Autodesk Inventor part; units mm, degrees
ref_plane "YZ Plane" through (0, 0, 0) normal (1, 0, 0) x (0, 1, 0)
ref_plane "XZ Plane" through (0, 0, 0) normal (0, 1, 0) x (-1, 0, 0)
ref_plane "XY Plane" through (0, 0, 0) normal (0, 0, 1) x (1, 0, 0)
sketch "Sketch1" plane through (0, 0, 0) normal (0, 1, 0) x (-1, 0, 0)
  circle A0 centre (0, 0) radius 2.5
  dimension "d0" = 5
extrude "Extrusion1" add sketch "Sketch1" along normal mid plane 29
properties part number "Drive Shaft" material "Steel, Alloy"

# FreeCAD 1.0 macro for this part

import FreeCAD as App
import Part
import Sketcher
from FreeCAD import Vector
Q = App.Units.Quantity

doc = App.newDocument("Part")
params = doc.addObject("Spreadsheet::Sheet", "Params")
for row, (alias, value) in enumerate([
    ("sketch1_diameter", "5 mm"),
    ("pad1_length", "29 mm"),
], start=1):
    params.set(f"A{row}", alias)
    params.set(f"B{row}", "=" + value)
    params.setAlias(f"B{row}", alias)

body = doc.addObject("PartDesign::Body", "Body")

sketch1 = body.newObject("Sketcher::SketchObject", "Sketch")
sketch1.AttachmentSupport = (doc.getObject("XZ_Plane"), [""])
sketch1.MapMode = "FlatFace"
sketch1.addGeometry(Part.Circle(Vector(0, 0, 0), Vector(0, 0, 1), 2.5), False)
sketch1.addConstraint([
    Sketcher.Constraint("Coincident", 0, 3, -1, 1),
    Sketcher.Constraint("Diameter", 0, Q("5 mm")),
])
sketch1.setExpression("Constraints[1]", "Params.sketch1_diameter")
pad1 = body.newObject("PartDesign::Pad", "Pad")
pad1.Profile = sketch1
pad1.setExpression("Length", "Params.pad1_length")
pad1.Midplane = True

doc.recompute()
